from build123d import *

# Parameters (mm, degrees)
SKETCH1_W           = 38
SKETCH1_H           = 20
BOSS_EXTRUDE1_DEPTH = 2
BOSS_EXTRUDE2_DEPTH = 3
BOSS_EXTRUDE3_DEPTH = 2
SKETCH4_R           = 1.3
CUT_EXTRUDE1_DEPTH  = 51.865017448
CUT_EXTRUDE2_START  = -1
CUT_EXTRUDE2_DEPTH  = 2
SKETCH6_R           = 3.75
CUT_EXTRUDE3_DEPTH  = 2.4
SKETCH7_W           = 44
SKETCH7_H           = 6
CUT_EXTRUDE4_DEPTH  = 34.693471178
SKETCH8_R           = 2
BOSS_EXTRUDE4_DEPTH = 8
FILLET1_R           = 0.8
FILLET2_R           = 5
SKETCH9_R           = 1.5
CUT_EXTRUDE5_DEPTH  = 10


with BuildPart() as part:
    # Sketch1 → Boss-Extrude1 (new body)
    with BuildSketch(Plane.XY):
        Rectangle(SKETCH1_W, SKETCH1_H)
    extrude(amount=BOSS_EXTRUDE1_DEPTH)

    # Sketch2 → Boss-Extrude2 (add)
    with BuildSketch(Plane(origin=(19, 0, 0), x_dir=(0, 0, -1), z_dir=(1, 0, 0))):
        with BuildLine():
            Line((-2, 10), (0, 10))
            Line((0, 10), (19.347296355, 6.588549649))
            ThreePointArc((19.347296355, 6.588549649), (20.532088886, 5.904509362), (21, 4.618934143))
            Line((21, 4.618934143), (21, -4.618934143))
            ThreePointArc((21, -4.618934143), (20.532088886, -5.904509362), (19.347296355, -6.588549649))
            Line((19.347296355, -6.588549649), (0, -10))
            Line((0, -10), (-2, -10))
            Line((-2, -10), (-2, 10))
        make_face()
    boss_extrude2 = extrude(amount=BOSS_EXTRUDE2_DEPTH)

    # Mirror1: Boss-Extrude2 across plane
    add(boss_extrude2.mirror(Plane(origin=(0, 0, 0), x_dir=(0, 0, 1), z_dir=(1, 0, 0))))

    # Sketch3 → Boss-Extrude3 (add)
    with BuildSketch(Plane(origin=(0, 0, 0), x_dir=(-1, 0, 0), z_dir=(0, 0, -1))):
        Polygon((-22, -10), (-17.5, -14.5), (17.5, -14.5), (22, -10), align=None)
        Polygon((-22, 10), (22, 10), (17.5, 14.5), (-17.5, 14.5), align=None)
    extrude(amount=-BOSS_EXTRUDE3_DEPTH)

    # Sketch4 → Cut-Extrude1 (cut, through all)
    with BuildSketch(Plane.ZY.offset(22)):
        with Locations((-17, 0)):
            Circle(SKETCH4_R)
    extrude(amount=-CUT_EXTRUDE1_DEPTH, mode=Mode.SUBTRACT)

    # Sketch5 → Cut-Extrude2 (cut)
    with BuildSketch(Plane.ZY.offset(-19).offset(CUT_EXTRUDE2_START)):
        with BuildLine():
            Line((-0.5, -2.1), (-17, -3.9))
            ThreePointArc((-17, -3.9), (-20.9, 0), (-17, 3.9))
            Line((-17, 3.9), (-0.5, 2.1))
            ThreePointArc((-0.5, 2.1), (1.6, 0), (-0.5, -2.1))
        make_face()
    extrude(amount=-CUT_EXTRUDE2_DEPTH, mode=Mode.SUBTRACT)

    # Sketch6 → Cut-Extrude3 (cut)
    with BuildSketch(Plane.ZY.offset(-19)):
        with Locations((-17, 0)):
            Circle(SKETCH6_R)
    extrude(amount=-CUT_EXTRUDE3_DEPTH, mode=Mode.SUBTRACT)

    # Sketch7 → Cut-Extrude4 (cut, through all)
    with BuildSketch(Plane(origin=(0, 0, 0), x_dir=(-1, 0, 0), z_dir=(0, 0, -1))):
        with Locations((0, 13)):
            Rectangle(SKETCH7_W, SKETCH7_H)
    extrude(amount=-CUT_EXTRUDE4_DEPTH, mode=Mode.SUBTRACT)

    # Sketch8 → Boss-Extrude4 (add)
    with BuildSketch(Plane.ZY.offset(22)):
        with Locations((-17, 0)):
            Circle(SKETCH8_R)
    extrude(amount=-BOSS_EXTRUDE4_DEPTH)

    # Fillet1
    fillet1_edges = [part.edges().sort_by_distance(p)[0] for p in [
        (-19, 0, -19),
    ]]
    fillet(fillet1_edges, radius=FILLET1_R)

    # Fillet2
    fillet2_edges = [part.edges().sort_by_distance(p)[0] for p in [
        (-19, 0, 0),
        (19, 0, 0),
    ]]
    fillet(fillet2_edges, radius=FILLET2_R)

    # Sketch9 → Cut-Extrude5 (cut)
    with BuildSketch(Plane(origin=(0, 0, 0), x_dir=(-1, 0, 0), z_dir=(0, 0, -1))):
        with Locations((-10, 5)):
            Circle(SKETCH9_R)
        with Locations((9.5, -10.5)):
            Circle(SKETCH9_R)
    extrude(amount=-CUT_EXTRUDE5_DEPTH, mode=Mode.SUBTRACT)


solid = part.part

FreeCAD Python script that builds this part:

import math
import FreeCAD as App
import Part
import Sketcher
Q = App.Units.Quantity


def edges_at(feature, points):
    """Names of the edges that pass closest to the given points."""
    edges = feature.Shape.Edges
    near = lambda p: min(range(len(edges)), key=lambda i: edges[i].distToShape(Part.Vertex(*p))[0])
    return sorted({f"Edge{near(p) + 1}" for p in points})


def add_polygon(sketch, points):
    """Adds a closed chain of lines whose ends are joined by coincident constraints."""
    first, n = sketch.GeometryCount, len(points)
    for a, b in zip(points, points[1:] + points[:1]):
        sketch.addGeometry(Part.LineSegment(App.Vector(*a, 0), App.Vector(*b, 0)), False)
    for i in range(n):
        sketch.addConstraint(Sketcher.Constraint("Coincident", first + i, 2, first + (i + 1) % n, 1))

doc = App.newDocument("Part")
body = doc.addObject("PartDesign::Body", "Body")

sketch1 = body.newObject("Sketcher::SketchObject", "Sketch")
sketch1.AttachmentSupport = (doc.getObject("XY_Plane"), [""])
sketch1.MapMode = "FlatFace"
add_polygon(sketch1, [(-19, 10), (-19, -10), (19, -10), (19, 10)])
sketch1.addConstraint([
    Sketcher.Constraint("Vertical", 0),
    Sketcher.Constraint("Horizontal", 1),
    Sketcher.Constraint("Vertical", 2),
    Sketcher.Constraint("Horizontal", 3),
    Sketcher.Constraint("Symmetric", 0, 2, 2, 2, -1, 1),
    Sketcher.Constraint("DistanceX", 1, 1, 1, 2, 38.0),
    Sketcher.Constraint("DistanceY", 0, 2, 0, 1, 20.0),
])
pad1 = body.newObject("PartDesign::Pad", "Pad")
pad1.Profile = sketch1
pad1.Length = 2

sketch2 = body.newObject("Sketcher::SketchObject", "Sketch001")
sketch2.AttachmentSupport = (doc.getObject("YZ_Plane"), [""])
sketch2.MapMode = "FlatFace"
sketch2.AttachmentOffset = App.Placement(App.Vector(0, 0, 19), App.Rotation())
sketch2.addGeometry([
    Part.LineSegment(App.Vector(10, 0, 0), App.Vector(10, 2, 0)),
    Part.LineSegment(App.Vector(10, 2, 0), App.Vector(-10, 2, 0)),
    Part.LineSegment(App.Vector(-10, 2, 0), App.Vector(-10, 0, 0)),
    Part.LineSegment(App.Vector(-10, 0, 0), App.Vector(-6.6, -19.3, 0)),
    Part.ArcOfCircle(Part.Circle(App.Vector(-4.6, -19, 0), App.Vector(0, 0, 1), 2), math.radians(-170), math.radians(-90)),
    Part.LineSegment(App.Vector(-4.6, -21, 0), App.Vector(4.6, -21, 0)),
    Part.ArcOfCircle(Part.Circle(App.Vector(4.6, -19, 0), App.Vector(0, 0, 1), 2), math.radians(-90), math.radians(-10)),
    Part.LineSegment(App.Vector(6.6, -19.3, 0), App.Vector(10, 0, 0)),
], False)
sketch2.addConstraint([
    Sketcher.Constraint("Coincident", 0, 2, 1, 1),
    Sketcher.Constraint("Coincident", 1, 2, 2, 1),
    Sketcher.Constraint("Coincident", 2, 2, 3, 1),
    Sketcher.Constraint("Tangent", 3, 2, 4, 1),
    Sketcher.Constraint("Tangent", 4, 2, 5, 1),
    Sketcher.Constraint("Tangent", 5, 2, 6, 1),
    Sketcher.Constraint("Tangent", 6, 2, 7, 1),
    Sketcher.Constraint("Coincident", 7, 2, 0, 1),
    Sketcher.Constraint("Vertical", 0),
    Sketcher.Constraint("Horizontal", 1),
    Sketcher.Constraint("Vertical", 2),
    Sketcher.Constraint("Horizontal", 5),
    Sketcher.Constraint("Equal", 4, 6),
    Sketcher.Constraint("Symmetric", 2, 2, 7, 2, -1, 1),
    Sketcher.Constraint("Symmetric", 3, 2, 6, 2, -2),
    Sketcher.Constraint("Radius", 4, 2.0),
    Sketcher.Constraint("DistanceX", 1, 2, 1, 1, 20.0),
    Sketcher.Constraint("DistanceY", 0, 1, 0, 2, 2.0),
    Sketcher.Constraint("Angle", 3, Q("-80 deg")),
    Sketcher.Constraint("DistanceY", 4, 3, -1, 1, 19.0),
])
pad2 = body.newObject("PartDesign::Pad", "Pad001")
pad2.Profile = sketch2
pad2.Length = 3
doc.recompute()

mirrored = body.newObject("PartDesign::Mirrored", "Mirrored")
mirrored.Originals = [pad2]
mirrored.MirrorPlane = (doc.getObject("YZ_Plane"), [""])
body.Tip = mirrored

sketch3 = body.newObject("Sketcher::SketchObject", "Sketch002")
sketch3.AttachmentSupport = (doc.getObject("XY_Plane"), [""])
sketch3.MapMode = "FlatFace"
add_polygon(sketch3, [(22, -10), (18, -14), (-18, -14), (-22, -10)])
add_polygon(sketch3, [(22, 10), (-22, 10), (-18, 14), (18, 14)])
sketch3.addConstraint([
    Sketcher.Constraint("Horizontal", 1),
    Sketcher.Constraint("Horizontal", 3),
    Sketcher.Constraint("Horizontal", 4),
    Sketcher.Constraint("Horizontal", 6),
    Sketcher.Constraint("Symmetric", 3, 2, 4, 2, -1, 1),
    Sketcher.Constraint("Symmetric", 0, 2, 5, 2, -1, 1),
    Sketcher.Constraint("Perpendicular", 0, 2),
    Sketcher.Constraint("Perpendicular", 5, 7),
    Sketcher.Constraint("Vertical", 2, 2, 4, 2),
    Sketcher.Constraint("Vertical", 1, 2, 5, 2),
    Sketcher.Constraint("Vertical", 0, 2, 6, 2),
    Sketcher.Constraint("DistanceX", 1, 2, 1, 1, 35.0),
    Sketcher.Constraint("DistanceX", 3, 1, 3, 2, 44.0),
    Sketcher.Constraint("DistanceY", 2, 2, -1, 1, 10.0),
])
pad3 = body.newObject("PartDesign::Pad", "Pad002")
pad3.Profile = sketch3
pad3.Length = 2

sketch4 = body.newObject("Sketcher::SketchObject", "Sketch003")
sketch4.AttachmentSupport = (doc.getObject("YZ_Plane"), [""])
sketch4.MapMode = "FlatFace"
sketch4.AttachmentOffset = App.Placement(App.Vector(0, 0, -22), App.Rotation())
sketch4.addGeometry(Part.Circle(App.Vector(0, -17, 0), App.Vector(0, 0, 1), 1.3), False)
sketch4.addConstraint([
    Sketcher.Constraint("PointOnObject", 0, 3, -2),
    Sketcher.Constraint("Diameter", 0, 2.6),
    Sketcher.Constraint("DistanceY", 0, 3, -1, 1, 17.0),
])
pocket1 = body.newObject("PartDesign::Pocket", "Pocket")
pocket1.Profile = sketch4
pocket1.Type = "ThroughAll"
pocket1.Reversed = True

sketch5 = body.newObject("Sketcher::SketchObject", "Sketch004")
sketch5.AttachmentSupport = (doc.getObject("YZ_Plane"), [""])
sketch5.MapMode = "FlatFace"
sketch5.AttachmentOffset = App.Placement(App.Vector(0, 0, 20), App.Rotation())
sketch5.addGeometry([
    Part.LineSegment(App.Vector(-3.9, -17, 0), App.Vector(-2.1, -0.5, 0)),
    Part.ArcOfCircle(Part.Circle(App.Vector(0, -0.5, 0), App.Vector(0, 0, 1), 2.1), math.radians(0), math.radians(180)),
    Part.LineSegment(App.Vector(2.1, -0.5, 0), App.Vector(3.9, -17, 0)),
    Part.ArcOfCircle(Part.Circle(App.Vector(0, -17, 0), App.Vector(0, 0, 1), 3.9), math.radians(180), math.radians(360)),
], False)
sketch5.addConstraint([
    Sketcher.Constraint("Coincident", 0, 2, 1, 2),
    Sketcher.Constraint("Coincident", 1, 1, 2, 1),
    Sketcher.Constraint("Coincident", 2, 2, 3, 2),
    Sketcher.Constraint("Coincident", 3, 1, 0, 1),
    Sketcher.Constraint("Symmetric", 0, 2, 1, 1, -2),
    Sketcher.Constraint("Symmetric", 2, 2, 3, 1, -2),
    Sketcher.Constraint("Horizontal", 1, 3, 0, 2),
    Sketcher.Constraint("Horizontal", 3, 3, 2, 2),
    Sketcher.Constraint("Radius", 1, 2.1),
    Sketcher.Constraint("Radius", 3, 3.9),
    Sketcher.Constraint("DistanceY", 3, 3, -1, 1, 17.0),
    Sketcher.Constraint("DistanceY", 1, 3, -1, 1, 0.5),
])
pocket2 = body.newObject("PartDesign::Pocket", "Pocket001")
pocket2.Profile = sketch5
pocket2.Length = 2
pocket2.Reversed = True

sketch6 = body.newObject("Sketcher::SketchObject", "Sketch005")
sketch6.AttachmentSupport = (doc.getObject("YZ_Plane"), [""])
sketch6.MapMode = "FlatFace"
sketch6.AttachmentOffset = App.Placement(App.Vector(0, 0, 19), App.Rotation())
sketch6.addGeometry(Part.Circle(App.Vector(0, -17, 0), App.Vector(0, 0, 1), 3.8), False)
sketch6.addConstraint([
    Sketcher.Constraint("PointOnObject", 0, 3, -2),
    Sketcher.Constraint("Diameter", 0, 7.5),
    Sketcher.Constraint("DistanceY", 0, 3, -1, 1, 17.0),
])
pocket3 = body.newObject("PartDesign::Pocket", "Pocket002")
pocket3.Profile = sketch6
pocket3.Length = 2.4
pocket3.Reversed = True

sketch7 = body.newObject("Sketcher::SketchObject", "Sketch006")
sketch7.AttachmentSupport = (doc.getObject("XY_Plane"), [""])
sketch7.MapMode = "FlatFace"
add_polygon(sketch7, [(22, 16), (22, 10), (-22, 10), (-22, 16)])
sketch7.addConstraint([
    Sketcher.Constraint("Vertical", 0),
    Sketcher.Constraint("Horizontal", 1),
    Sketcher.Constraint("Vertical", 2),
    Sketcher.Constraint("Horizontal", 3),
    Sketcher.Constraint("DistanceX", 1, 2, 1, 1, 44.0),
    Sketcher.Constraint("DistanceY", 0, 2, 0, 1, 6.0),
    Sketcher.Constraint("DistanceX", -1, 1, 0, 2, 22.0),
    Sketcher.Constraint("DistanceY", -1, 1, 0, 2, 10.0),
])
pocket4 = body.newObject("PartDesign::Pocket", "Pocket003")
pocket4.Profile = sketch7
pocket4.Type = "ThroughAll"
pocket4.Reversed = True

sketch8 = body.newObject("Sketcher::SketchObject", "Sketch007")
sketch8.AttachmentSupport = (doc.getObject("YZ_Plane"), [""])
sketch8.MapMode = "FlatFace"
sketch8.AttachmentOffset = App.Placement(App.Vector(0, 0, -22), App.Rotation())
sketch8.addGeometry(Part.Circle(App.Vector(0, -17, 0), App.Vector(0, 0, 1), 2), False)
sketch8.addConstraint([
    Sketcher.Constraint("PointOnObject", 0, 3, -2),
    Sketcher.Constraint("Diameter", 0, 4.0),
    Sketcher.Constraint("DistanceY", 0, 3, -1, 1, 17.0),
])
pad4 = body.newObject("PartDesign::Pad", "Pad003")
pad4.Profile = sketch8
pad4.Length = 8
doc.recompute()

fillet = body.newObject("PartDesign::Fillet", "Fillet")
fillet.Base = (pad4, edges_at(pad4, [(-19, 0, -19)]))
fillet.Radius = 0.8
doc.recompute()

fillet2 = body.newObject("PartDesign::Fillet", "Fillet001")
fillet2.Base = (fillet, edges_at(fillet, [(-19, 0, 0), (19, 0, 0)]))
fillet2.Radius = 5

sketch9 = body.newObject("Sketcher::SketchObject", "Sketch008")
sketch9.AttachmentSupport = (doc.getObject("XY_Plane"), [""])
sketch9.MapMode = "FlatFace"
sketch9.addGeometry([
    Part.Circle(App.Vector(10, 5, 0), App.Vector(0, 0, 1), 1.5),
    Part.Circle(App.Vector(-9.5, -10.5, 0), App.Vector(0, 0, 1), 1.5),
], False)
sketch9.addConstraint([
    Sketcher.Constraint("Equal", 0, 1),
    Sketcher.Constraint("Diameter", 0, 3.0),
    Sketcher.Constraint("DistanceX", -1, 1, 0, 3, 10.0),
    Sketcher.Constraint("DistanceY", -1, 1, 0, 3, 5.0),
    Sketcher.Constraint("DistanceX", 1, 3, -1, 1, 9.5),
    Sketcher.Constraint("DistanceY", 1, 3, -1, 1, 10.5),
])
pocket5 = body.newObject("PartDesign::Pocket", "Pocket004")
pocket5.Profile = sketch9
pocket5.Length = 10
pocket5.Reversed = True

doc.recompute()
